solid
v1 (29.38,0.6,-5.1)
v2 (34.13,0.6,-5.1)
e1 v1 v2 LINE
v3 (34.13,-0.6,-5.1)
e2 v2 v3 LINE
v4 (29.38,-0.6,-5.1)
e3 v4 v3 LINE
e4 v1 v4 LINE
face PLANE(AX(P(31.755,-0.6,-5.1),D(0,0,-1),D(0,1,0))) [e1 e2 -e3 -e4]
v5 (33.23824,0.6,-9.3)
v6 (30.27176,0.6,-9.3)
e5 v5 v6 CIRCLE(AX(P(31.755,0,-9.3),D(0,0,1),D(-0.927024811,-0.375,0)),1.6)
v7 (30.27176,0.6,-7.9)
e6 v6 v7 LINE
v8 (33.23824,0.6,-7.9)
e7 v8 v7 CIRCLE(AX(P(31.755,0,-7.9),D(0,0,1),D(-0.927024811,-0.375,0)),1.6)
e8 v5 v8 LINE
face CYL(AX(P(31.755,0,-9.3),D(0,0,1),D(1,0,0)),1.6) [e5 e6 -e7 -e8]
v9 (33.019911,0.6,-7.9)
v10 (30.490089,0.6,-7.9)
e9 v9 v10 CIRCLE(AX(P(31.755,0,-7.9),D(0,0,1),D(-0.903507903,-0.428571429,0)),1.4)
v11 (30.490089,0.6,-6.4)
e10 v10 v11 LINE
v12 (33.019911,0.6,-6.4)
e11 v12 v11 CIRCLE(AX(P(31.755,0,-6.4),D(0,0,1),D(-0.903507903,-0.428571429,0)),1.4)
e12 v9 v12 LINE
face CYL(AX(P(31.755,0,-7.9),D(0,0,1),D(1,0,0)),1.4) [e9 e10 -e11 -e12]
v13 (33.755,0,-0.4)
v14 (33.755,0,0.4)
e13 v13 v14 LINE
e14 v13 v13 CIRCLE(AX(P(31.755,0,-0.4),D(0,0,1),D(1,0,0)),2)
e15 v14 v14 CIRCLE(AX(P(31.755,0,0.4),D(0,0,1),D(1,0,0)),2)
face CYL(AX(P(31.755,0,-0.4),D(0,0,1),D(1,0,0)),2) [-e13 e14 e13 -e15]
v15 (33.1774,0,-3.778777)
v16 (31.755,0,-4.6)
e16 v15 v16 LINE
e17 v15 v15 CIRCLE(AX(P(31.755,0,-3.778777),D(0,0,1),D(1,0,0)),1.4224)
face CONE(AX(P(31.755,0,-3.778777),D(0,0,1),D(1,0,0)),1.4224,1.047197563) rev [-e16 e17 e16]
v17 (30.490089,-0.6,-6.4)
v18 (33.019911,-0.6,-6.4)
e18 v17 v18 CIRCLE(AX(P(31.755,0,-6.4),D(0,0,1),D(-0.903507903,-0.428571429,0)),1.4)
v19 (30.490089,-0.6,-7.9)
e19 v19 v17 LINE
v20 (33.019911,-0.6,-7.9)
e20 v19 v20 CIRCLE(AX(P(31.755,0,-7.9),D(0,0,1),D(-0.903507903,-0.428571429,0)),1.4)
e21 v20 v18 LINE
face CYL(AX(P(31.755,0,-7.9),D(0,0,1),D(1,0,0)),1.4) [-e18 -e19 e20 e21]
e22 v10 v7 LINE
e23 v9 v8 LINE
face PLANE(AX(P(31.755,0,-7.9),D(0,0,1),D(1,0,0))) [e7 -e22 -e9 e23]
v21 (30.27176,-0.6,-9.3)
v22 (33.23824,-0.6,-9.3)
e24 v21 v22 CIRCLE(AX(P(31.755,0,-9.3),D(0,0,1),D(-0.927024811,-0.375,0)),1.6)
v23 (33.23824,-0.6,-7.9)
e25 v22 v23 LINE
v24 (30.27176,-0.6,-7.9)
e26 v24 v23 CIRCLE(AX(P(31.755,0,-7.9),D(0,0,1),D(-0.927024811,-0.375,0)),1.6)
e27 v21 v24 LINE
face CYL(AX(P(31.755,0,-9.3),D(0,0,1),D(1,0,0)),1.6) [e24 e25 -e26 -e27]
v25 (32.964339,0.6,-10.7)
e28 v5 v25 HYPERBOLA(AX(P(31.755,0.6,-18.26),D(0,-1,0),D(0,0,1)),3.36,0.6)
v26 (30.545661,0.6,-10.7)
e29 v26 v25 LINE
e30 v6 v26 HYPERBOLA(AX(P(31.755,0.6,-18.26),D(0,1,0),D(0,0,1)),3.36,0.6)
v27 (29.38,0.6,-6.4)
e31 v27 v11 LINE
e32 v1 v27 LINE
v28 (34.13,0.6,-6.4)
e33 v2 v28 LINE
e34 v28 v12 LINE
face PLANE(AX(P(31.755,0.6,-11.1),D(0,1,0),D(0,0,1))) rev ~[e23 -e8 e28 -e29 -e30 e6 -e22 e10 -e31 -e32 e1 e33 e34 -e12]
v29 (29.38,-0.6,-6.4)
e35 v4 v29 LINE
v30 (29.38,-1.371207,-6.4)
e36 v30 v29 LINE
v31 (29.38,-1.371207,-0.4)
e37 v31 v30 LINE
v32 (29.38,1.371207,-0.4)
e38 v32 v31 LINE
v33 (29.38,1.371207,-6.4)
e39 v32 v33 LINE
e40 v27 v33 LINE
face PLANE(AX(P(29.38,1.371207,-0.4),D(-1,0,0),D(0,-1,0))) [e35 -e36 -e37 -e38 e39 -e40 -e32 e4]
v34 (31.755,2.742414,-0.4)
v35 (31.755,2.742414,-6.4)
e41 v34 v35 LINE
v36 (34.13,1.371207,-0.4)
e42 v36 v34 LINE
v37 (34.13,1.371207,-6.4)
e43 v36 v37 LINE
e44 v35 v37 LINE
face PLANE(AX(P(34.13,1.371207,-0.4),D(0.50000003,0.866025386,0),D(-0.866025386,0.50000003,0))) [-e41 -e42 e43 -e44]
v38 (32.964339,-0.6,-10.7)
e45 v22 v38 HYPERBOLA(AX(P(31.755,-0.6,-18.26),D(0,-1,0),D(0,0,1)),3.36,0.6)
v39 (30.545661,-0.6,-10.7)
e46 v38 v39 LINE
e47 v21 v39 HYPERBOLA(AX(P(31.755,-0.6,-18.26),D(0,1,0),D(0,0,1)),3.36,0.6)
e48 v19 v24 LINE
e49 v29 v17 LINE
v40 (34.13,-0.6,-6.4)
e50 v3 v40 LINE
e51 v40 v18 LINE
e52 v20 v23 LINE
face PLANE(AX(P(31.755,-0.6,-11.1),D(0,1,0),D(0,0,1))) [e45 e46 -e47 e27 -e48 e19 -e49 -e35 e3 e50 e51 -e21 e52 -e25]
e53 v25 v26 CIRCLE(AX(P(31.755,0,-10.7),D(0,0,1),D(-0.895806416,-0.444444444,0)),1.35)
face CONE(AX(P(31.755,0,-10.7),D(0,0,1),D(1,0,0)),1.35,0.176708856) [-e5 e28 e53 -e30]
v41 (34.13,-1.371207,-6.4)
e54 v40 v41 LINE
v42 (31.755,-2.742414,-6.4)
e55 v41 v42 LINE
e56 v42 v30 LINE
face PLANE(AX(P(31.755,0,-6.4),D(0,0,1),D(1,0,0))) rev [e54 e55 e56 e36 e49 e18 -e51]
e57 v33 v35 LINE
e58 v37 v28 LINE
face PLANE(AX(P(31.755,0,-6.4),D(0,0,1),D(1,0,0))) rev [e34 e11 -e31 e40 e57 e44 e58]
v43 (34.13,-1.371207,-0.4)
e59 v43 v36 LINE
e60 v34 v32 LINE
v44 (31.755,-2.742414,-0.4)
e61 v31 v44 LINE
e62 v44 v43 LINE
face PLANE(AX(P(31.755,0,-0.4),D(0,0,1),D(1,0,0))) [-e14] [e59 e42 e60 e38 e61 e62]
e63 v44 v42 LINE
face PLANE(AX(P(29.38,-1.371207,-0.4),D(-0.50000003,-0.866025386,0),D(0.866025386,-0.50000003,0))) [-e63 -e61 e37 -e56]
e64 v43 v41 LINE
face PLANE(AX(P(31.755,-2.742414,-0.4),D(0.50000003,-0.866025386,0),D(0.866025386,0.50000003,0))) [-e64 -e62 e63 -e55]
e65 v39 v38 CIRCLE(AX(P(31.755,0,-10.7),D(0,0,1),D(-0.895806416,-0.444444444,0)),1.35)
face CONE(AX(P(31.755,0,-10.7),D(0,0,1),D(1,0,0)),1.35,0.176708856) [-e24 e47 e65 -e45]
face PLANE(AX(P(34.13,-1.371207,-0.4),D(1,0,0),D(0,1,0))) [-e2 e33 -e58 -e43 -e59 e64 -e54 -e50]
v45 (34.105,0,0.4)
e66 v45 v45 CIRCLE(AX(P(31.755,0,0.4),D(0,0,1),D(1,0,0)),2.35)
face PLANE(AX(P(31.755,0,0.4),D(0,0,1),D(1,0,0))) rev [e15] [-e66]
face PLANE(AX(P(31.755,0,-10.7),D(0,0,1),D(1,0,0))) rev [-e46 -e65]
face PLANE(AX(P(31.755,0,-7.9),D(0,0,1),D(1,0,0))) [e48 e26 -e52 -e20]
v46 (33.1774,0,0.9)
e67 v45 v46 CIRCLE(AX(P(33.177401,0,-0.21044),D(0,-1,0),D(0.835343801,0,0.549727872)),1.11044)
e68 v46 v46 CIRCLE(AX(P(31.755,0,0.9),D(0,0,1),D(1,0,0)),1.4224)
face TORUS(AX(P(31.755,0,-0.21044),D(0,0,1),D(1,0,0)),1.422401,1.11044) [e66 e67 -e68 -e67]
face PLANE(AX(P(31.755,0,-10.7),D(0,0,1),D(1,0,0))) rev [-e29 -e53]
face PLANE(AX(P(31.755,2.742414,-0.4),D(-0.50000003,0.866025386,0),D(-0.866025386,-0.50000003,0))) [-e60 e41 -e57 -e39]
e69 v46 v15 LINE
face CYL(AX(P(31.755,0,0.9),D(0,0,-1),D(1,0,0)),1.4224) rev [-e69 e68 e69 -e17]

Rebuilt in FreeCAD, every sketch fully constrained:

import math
import FreeCAD as App
import Part
import Sketcher

V = App.Vector
Q = App.Units.Quantity

doc = App.newDocument("Part")
body = doc.addObject("PartDesign::Body", "Body")

sketch1 = body.newObject("Sketcher::SketchObject", "Sketch")
sketch1.AttachmentSupport = (doc.getObject("XZ_Plane"), [""])
sketch1.MapMode = "FlatFace"
sketch1.addGeometry([
    Part.LineSegment(V(1.42, 0.5, 0), V(1.42, -4.18, 0)),
    Part.LineSegment(V(1.42, -4.18, 0), V(0, -5, 0)),
    Part.LineSegment(V(0, -5, 0), V(0, -11.1, 0)),
    Part.LineSegment(V(0, -11.1, 0), V(1.35, -11.1, 0)),
    Part.LineSegment(V(1.35, -11.1, 0), V(1.6, -9.7, 0)),
    Part.LineSegment(V(1.6, -9.7, 0), V(1.6, -8.3, 0)),
    Part.LineSegment(V(1.6, -8.3, 0), V(1.4, -8.3, 0)),
    Part.LineSegment(V(1.4, -8.3, 0), V(1.4, -6.8, 0)),
    Part.LineSegment(V(1.4, -6.8, 0), V(4, -6.8, 0)),
    Part.LineSegment(V(4, -6.8, 0), V(4, -0.8, 0)),
    Part.LineSegment(V(4, -0.8, 0), V(2, -0.8, 0)),
    Part.LineSegment(V(2, -0.8, 0), V(2, 0, 0)),
    Part.LineSegment(V(2, 0, 0), V(2.35, 0, 0)),
    Part.ArcOfCircle(Part.Circle(V(1.42, -0.61, 0), V(0, 0, 1), 1.11), math.radians(33), math.radians(90)),
], False)
sketch1.addConstraint([
    Sketcher.Constraint("Coincident", 0, 2, 1, 1),
    Sketcher.Constraint("Coincident", 1, 2, 2, 1),
    Sketcher.Constraint("Coincident", 2, 2, 3, 1),
    Sketcher.Constraint("Coincident", 3, 2, 4, 1),
    Sketcher.Constraint("Coincident", 4, 2, 5, 1),
    Sketcher.Constraint("Coincident", 5, 2, 6, 1),
    Sketcher.Constraint("Coincident", 6, 2, 7, 1),
    Sketcher.Constraint("Coincident", 7, 2, 8, 1),
    Sketcher.Constraint("Coincident", 8, 2, 9, 1),
    Sketcher.Constraint("Coincident", 9, 2, 10, 1),
    Sketcher.Constraint("Coincident", 10, 2, 11, 1),
    Sketcher.Constraint("Coincident", 11, 2, 12, 1),
    Sketcher.Constraint("Coincident", 12, 2, 13, 1),
    Sketcher.Constraint("Coincident", 13, 2, 0, 1),
    Sketcher.Constraint("Vertical", 0),
    Sketcher.Constraint("Vertical", 2),
    Sketcher.Constraint("Horizontal", 3),
    Sketcher.Constraint("Vertical", 5),
    Sketcher.Constraint("Horizontal", 6),
    Sketcher.Constraint("Vertical", 7),
    Sketcher.Constraint("Horizontal", 8),
    Sketcher.Constraint("Vertical", 9),
    Sketcher.Constraint("Horizontal", 10),
    Sketcher.Constraint("Vertical", 11),
    Sketcher.Constraint("Horizontal", 12),
    Sketcher.Constraint("PointOnObject", 1, 2, -2),
    Sketcher.Constraint("PointOnObject", 11, 2, -1),
    Sketcher.Constraint("Vertical", 13, 3, 0, 2),
    Sketcher.Constraint("DistanceX", 10, 2, 10, 1, 2.0),
    Sketcher.Constraint("DistanceY", 9, 1, 9, 2, 6.0),
    Sketcher.Constraint("Angle", 1, Q("-150.000001 deg")),
    Sketcher.Constraint("DistanceX", 6, 2, 6, 1, 0.2),
    Sketcher.Constraint("DistanceX", 8, 1, 8, 2, 2.6),
    Sketcher.Constraint("DistanceY", 2, 2, 2, 1, 6.1),
    Sketcher.Constraint("DistanceY", 5, 1, 5, 2, 1.4),
    Sketcher.Constraint("DistanceY", 7, 1, 7, 2, 1.5),
    Sketcher.Constraint("DistanceY", 11, 1, 11, 2, 0.8),
    Sketcher.Constraint("DistanceY", 1, 2, -1, 1, 5.0),
    Sketcher.Constraint("DistanceX", -1, 1, 8, 2, 4.0),
    Sketcher.Constraint("DistanceX", 3, 1, 3, 2, 1.35),
    Sketcher.Constraint("DistanceX", 12, 1, 12, 2, 0.35),
    Sketcher.Constraint("DistanceY", -1, 1, 13, 2, 0.5),
    Sketcher.Constraint("Radius", 13, 1.11044),
])
revolution = body.newObject("PartDesign::Revolution", "Revolution")
revolution.Profile = sketch1
revolution.ReferenceAxis = (sketch1, ["V_Axis"])
revolution.Angle = 360

sketch2 = body.newObject("Sketcher::SketchObject", "Sketch001")
sketch2.AttachmentSupport = (doc.getObject("XY_Plane"), [""])
sketch2.MapMode = "FlatFace"
sketch2.AttachmentOffset = App.Placement(V(0, 0, -0.8), App.Rotation())
sketch2.addGeometry([
    Part.Circle(V(0, 0, 0), V(0, 0, 1), 4.7),
    Part.LineSegment(V(2.4, -1.4, 0), V(0, -2.7, 0)),
    Part.LineSegment(V(0, -2.7, 0), V(-2.4, -1.4, 0)),
    Part.LineSegment(V(-2.4, -1.4, 0), V(-2.4, 1.4, 0)),
    Part.LineSegment(V(-2.4, 1.4, 0), V(0, 2.7, 0)),
    Part.LineSegment(V(0, 2.7, 0), V(2.4, 1.4, 0)),
    Part.LineSegment(V(2.4, 1.4, 0), V(2.4, -1.4, 0)),
], False)
sketch2.addConstraint([
    Sketcher.Constraint("Coincident", 1, 2, 2, 1),
    Sketcher.Constraint("Coincident", 2, 2, 3, 1),
    Sketcher.Constraint("Coincident", 3, 2, 4, 1),
    Sketcher.Constraint("Coincident", 4, 2, 5, 1),
    Sketcher.Constraint("Coincident", 5, 2, 6, 1),
    Sketcher.Constraint("Coincident", 6, 2, 1, 1),
    Sketcher.Constraint("Vertical", 3),
    Sketcher.Constraint("Vertical", 6),
    Sketcher.Constraint("Coincident", 0, 3, -1, 1),
    Sketcher.Constraint("Symmetric", 1, 2, 4, 2, -1, 1),
    Sketcher.Constraint("Symmetric", 2, 2, 5, 2, -1, 1),
    Sketcher.Constraint("PointOnObject", 1, 2, -2),
    Sketcher.Constraint("Parallel", 1, 4),
    Sketcher.Constraint("Horizontal", 3, 2, 5, 2),
    Sketcher.Constraint("Angle", 1, Q("-149.999998 deg")),
    Sketcher.Constraint("DistanceX", 3, 2, 5, 2, 4.75),
    Sketcher.Constraint("Diameter", 0, 9.359224),
    Sketcher.Constraint("DistanceY", 3, 1, 3, 2, 2.742414),
])
pocket1 = body.newObject("PartDesign::Pocket", "Pocket")
pocket1.Profile = sketch2
pocket1.Type = "ThroughAll"

sketch3 = body.newObject("Sketcher::SketchObject", "Sketch002")
sketch3.AttachmentSupport = (doc.getObject("YZ_Plane"), [""])
sketch3.MapMode = "FlatFace"
sketch3.addGeometry([
    Part.LineSegment(V(-0.6, -5.5, 0), V(-0.6, -11.5, 0)),
    Part.LineSegment(V(-0.6, -11.5, 0), V(0.6, -11.5, 0)),
    Part.LineSegment(V(0.6, -11.5, 0), V(0.6, -5.5, 0)),
    Part.LineSegment(V(0.6, -5.5, 0), V(-0.6, -5.5, 0)),
], False)
sketch3.addConstraint([
    Sketcher.Constraint("Coincident", 0, 2, 1, 1),
    Sketcher.Constraint("Coincident", 1, 2, 2, 1),
    Sketcher.Constraint("Coincident", 2, 2, 3, 1),
    Sketcher.Constraint("Coincident", 3, 2, 0, 1),
    Sketcher.Constraint("Vertical", 0),
    Sketcher.Constraint("Horizontal", 1),
    Sketcher.Constraint("Vertical", 2),
    Sketcher.Constraint("Horizontal", 3),
    Sketcher.Constraint("DistanceY", 0, 2, 0, 1, 6.0),
    Sketcher.Constraint("DistanceX", 1, 1, 1, 2, 1.2),
    Sketcher.Constraint("DistanceX", 0, 2, -1, 1, 0.6),
    Sketcher.Constraint("DistanceY", 0, 2, -1, 1, 11.5),
])
pocket2 = body.newObject("PartDesign::Pocket", "Pocket001")
pocket2.Profile = sketch3
pocket2.Type = "ThroughAll"
pocket2.Midplane = True
body2 = doc.addObject("PartDesign::Body", "Body001")
doc.recompute()

body.Placement = App.Placement(V(-31.755, 0, 0.4), App.Rotation(V(0, 0, 1), 0))
boolean = body2.newObject("PartDesign::Boolean", "Boolean")
boolean.Type = "Fuse"
boolean.addObjects([body])
body3 = doc.addObject("PartDesign::Body", "Body002")
doc.recompute()

body2.Placement = App.Placement(V(31.755, 0, -0.4), App.Rotation(V(0, 0, 1), 0))
boolean2 = body3.newObject("PartDesign::Boolean", "Boolean001")
boolean2.Type = "Fuse"
boolean2.addObjects([body2])
body4 = doc.addObject("PartDesign::Body", "Body003")
doc.recompute()

body3.Placement = App.Placement(V(31.755, 0, 0.4), App.Rotation(V(0, 0, 1), 0))
boolean3 = body4.newObject("PartDesign::Boolean", "Boolean002")
boolean3.Type = "Fuse"
boolean3.addObjects([body3])

doc.recompute()
